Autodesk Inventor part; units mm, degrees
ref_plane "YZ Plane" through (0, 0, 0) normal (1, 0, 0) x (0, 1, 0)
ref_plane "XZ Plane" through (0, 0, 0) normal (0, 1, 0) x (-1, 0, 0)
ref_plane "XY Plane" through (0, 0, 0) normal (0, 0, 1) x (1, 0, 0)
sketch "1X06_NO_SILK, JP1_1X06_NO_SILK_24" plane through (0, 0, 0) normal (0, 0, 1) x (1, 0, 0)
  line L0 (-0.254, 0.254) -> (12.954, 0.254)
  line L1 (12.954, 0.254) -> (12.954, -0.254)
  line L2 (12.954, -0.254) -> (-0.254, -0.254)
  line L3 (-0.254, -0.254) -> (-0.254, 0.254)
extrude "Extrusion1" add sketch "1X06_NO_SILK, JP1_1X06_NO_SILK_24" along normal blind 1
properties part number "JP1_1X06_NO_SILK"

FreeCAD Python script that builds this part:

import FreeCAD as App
import Part
import Sketcher

V = App.Vector
Q = App.Units.Quantity

doc = App.newDocument("Part")
body = doc.addObject("PartDesign::Body", "Body")

sketch1 = body.newObject("Sketcher::SketchObject", "Sketch")
sketch1.AttachmentSupport = (doc.getObject("XY_Plane"), [""])
sketch1.MapMode = "FlatFace"
sketch1.addGeometry([
    Part.LineSegment(V(12.954, 0.254, 0), V(-0.254, 0.254, 0)),
    Part.LineSegment(V(-0.254, 0.254, 0), V(-0.254, -0.254, 0)),
    Part.LineSegment(V(-0.254, -0.254, 0), V(12.954, -0.254, 0)),
    Part.LineSegment(V(12.954, -0.254, 0), V(12.954, 0.254, 0)),
], False)
sketch1.addConstraint([
    Sketcher.Constraint("Coincident", 0, 2, 1, 1),
    Sketcher.Constraint("Coincident", 1, 2, 2, 1),
    Sketcher.Constraint("Coincident", 2, 2, 3, 1),
    Sketcher.Constraint("Coincident", 3, 2, 0, 1),
    Sketcher.Constraint("Horizontal", 0),
    Sketcher.Constraint("Vertical", 1),
    Sketcher.Constraint("Horizontal", 2),
    Sketcher.Constraint("Vertical", 3),
    Sketcher.Constraint("DistanceX", 0, 2, 0, 1, Q("0.52 in")),
    Sketcher.Constraint("DistanceY", 1, 2, 1, 1, Q("0.02 in")),
    Sketcher.Constraint("DistanceX", 0, 2, -1, 1, Q("0.01 in")),
    Sketcher.Constraint("DistanceY", -1, 1, 0, 2, Q("0.01 in")),
])
pad1 = body.newObject("PartDesign::Pad", "Pad")
pad1.Profile = sketch1
pad1.Length = 1

doc.recompute()
